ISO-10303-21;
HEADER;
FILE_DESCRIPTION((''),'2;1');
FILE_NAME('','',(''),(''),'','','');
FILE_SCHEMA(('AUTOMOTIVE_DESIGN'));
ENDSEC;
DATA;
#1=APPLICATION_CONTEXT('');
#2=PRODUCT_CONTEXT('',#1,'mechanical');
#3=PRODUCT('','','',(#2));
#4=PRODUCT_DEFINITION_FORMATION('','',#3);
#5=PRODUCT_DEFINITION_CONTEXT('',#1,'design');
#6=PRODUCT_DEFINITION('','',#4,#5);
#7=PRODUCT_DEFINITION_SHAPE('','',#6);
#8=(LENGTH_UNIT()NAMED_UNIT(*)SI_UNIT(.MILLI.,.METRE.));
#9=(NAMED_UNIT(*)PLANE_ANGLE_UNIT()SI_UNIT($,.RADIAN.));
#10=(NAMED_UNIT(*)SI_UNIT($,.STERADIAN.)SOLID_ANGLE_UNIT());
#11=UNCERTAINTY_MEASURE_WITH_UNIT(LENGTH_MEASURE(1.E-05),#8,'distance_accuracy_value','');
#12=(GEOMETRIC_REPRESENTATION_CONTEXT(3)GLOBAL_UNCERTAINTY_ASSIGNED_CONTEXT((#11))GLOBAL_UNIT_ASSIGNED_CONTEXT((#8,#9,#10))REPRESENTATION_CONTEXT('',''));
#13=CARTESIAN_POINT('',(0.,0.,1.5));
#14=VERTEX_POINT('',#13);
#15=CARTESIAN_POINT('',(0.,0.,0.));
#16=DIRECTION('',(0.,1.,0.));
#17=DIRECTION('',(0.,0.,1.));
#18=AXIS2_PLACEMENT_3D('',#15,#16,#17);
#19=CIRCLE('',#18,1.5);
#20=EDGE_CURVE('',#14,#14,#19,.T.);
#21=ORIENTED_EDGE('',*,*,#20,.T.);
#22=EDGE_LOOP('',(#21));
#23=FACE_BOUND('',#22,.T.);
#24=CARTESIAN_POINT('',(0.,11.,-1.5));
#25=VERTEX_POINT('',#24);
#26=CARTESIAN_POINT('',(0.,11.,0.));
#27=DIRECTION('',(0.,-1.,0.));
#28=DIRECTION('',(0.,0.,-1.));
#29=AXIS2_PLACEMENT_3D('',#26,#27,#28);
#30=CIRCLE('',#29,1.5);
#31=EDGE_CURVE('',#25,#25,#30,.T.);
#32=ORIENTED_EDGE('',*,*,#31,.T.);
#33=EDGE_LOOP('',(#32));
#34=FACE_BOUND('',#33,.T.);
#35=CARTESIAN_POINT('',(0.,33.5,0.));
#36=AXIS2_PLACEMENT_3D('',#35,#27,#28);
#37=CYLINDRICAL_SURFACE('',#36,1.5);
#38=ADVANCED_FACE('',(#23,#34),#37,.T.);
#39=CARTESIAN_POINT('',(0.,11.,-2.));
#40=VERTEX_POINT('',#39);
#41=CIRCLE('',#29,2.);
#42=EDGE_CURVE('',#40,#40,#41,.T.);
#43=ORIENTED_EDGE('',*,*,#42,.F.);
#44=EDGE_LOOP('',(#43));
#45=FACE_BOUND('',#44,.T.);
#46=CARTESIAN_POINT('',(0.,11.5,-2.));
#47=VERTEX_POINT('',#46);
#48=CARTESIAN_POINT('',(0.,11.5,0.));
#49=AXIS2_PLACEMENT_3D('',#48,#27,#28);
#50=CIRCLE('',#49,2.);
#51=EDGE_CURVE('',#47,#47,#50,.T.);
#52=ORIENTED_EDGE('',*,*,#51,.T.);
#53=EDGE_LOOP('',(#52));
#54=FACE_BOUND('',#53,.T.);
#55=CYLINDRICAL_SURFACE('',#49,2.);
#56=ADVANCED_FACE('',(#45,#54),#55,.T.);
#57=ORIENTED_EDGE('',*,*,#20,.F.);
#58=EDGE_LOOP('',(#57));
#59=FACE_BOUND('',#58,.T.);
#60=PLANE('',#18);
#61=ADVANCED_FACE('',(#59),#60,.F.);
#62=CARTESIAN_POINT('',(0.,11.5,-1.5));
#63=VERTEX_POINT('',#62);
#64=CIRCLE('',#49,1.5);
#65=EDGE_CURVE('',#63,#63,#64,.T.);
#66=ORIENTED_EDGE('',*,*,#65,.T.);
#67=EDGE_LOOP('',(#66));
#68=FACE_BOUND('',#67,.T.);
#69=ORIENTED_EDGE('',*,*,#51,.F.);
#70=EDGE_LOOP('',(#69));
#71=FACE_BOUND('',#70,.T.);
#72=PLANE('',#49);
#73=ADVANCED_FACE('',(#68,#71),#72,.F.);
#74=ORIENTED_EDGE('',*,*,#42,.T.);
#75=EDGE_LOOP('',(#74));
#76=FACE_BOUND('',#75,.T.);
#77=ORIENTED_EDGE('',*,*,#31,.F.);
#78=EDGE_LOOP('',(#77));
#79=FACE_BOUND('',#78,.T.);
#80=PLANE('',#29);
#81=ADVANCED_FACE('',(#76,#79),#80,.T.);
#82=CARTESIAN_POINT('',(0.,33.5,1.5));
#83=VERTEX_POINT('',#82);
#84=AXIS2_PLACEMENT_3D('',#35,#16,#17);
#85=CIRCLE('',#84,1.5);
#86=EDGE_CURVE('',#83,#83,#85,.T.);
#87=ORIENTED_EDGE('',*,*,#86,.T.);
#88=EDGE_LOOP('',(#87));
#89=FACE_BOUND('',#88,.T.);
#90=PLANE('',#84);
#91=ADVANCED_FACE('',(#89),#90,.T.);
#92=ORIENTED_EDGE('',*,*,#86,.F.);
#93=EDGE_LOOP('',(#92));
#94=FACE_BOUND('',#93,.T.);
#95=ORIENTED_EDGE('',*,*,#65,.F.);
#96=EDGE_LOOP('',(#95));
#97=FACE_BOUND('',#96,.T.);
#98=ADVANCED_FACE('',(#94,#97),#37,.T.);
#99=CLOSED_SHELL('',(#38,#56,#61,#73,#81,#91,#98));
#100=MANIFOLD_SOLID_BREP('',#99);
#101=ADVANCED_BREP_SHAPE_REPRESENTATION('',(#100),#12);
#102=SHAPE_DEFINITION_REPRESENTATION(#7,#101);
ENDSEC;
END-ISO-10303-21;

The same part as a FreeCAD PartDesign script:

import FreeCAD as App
import Part
import Sketcher

V = App.Vector

doc = App.newDocument("Part")
params = doc.addObject("Spreadsheet::Sheet", "Params")
for row, (alias, value) in enumerate([
    ("sketch1_diameter", "3 mm"),
    ("pad1_length", "33.5 mm"),
    ("sketch2_diameter", "4 mm"),
    ("sketch2_diameter2", "3 mm"),
    ("pad2_length", "0.5 mm"),
], start=1):
    params.set(f"A{row}", alias)
    params.set(f"B{row}", "=" + value)
    params.setAlias(f"B{row}", alias)

body = doc.addObject("PartDesign::Body", "Body")

# Sketch on XZ plane
sketch1 = body.newObject("Sketcher::SketchObject", "Sketch")
sketch1.AttachmentSupport = (doc.getObject("XZ_Plane"), [""])
sketch1.MapMode = "FlatFace"
sketch1.addGeometry(Part.Circle(V(0, 0, 0), V(0, 0, 1), 1.5), False)
sketch1.addConstraint([
    Sketcher.Constraint("Coincident", 0, 3, -1, 1),
    Sketcher.Constraint("Diameter", 0, 3.0),
])
sketch1.setExpression("Constraints[1]", "Params.sketch1_diameter")
pad1 = body.newObject("PartDesign::Pad", "Pad")
pad1.Profile = sketch1
pad1.setExpression("Length", "Params.pad1_length")
pad1.Reversed = True

# Sketch on XZ plane
sketch2 = body.newObject("Sketcher::SketchObject", "Sketch001")
sketch2.AttachmentSupport = (doc.getObject("XZ_Plane"), [""])
sketch2.MapMode = "FlatFace"
sketch2.AttachmentOffset = App.Placement(V(0, 0, -11), App.Rotation())
sketch2.addGeometry([
    Part.Circle(V(0, 0, 0), V(0, 0, 1), 2),
    Part.Circle(V(0, 0, 0), V(0, 0, 1), 1.5),
], False)
sketch2.addConstraint([
    Sketcher.Constraint("Coincident", 0, 3, -1, 1),
    Sketcher.Constraint("Coincident", 1, 3, -1, 1),
    Sketcher.Constraint("Diameter", 0, 4.0),
    Sketcher.Constraint("Diameter", 1, 3.0),
])
sketch2.setExpression("Constraints[2]", "Params.sketch2_diameter")
sketch2.setExpression("Constraints[3]", "Params.sketch2_diameter2")
pad2 = body.newObject("PartDesign::Pad", "Pad001")
pad2.Profile = sketch2
pad2.setExpression("Length", "Params.pad2_length")
pad2.Reversed = True

doc.recompute()
